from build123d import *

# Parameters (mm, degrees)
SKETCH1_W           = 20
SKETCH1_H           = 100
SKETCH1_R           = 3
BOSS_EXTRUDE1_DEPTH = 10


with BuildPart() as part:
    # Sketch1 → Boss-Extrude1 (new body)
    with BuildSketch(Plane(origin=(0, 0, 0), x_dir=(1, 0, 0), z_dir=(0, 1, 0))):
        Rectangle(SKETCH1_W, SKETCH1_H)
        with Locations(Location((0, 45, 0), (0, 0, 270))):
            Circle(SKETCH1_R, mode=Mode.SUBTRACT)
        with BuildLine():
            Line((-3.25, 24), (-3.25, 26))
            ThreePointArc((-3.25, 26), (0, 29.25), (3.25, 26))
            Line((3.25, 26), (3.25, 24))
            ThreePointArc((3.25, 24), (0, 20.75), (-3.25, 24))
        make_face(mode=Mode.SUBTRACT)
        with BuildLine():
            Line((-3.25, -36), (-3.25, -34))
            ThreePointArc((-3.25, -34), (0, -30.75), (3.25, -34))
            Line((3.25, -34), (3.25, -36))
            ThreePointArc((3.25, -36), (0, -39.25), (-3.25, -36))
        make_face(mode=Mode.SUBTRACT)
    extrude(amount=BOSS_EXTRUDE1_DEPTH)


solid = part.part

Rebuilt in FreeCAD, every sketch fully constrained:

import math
import FreeCAD as App
import Part
import Sketcher
Q = App.Units.Quantity

doc = App.newDocument("Part")
body = doc.addObject("PartDesign::Body", "Body")

sketch1 = body.newObject("Sketcher::SketchObject", "Sketch")
sketch1.AttachmentSupport = (doc.getObject("XZ_Plane"), [""])
sketch1.MapMode = "FlatFace"
sketch1.addGeometry([
    Part.LineSegment(App.Vector(-10, -50, 0), App.Vector(-10, 50, 0)),
    Part.LineSegment(App.Vector(-10, 50, 0), App.Vector(10, 50, 0)),
    Part.LineSegment(App.Vector(10, 50, 0), App.Vector(10, -50, 0)),
    Part.LineSegment(App.Vector(10, -50, 0), App.Vector(-10, -50, 0)),
    Part.ArcOfCircle(Part.Circle(App.Vector(0, 36, 0), App.Vector(0, 0, 1), 3.2), math.radians(0), math.radians(180)),
    Part.LineSegment(App.Vector(-3.2, 36, 0), App.Vector(-3.2, 34, 0)),
    Part.ArcOfCircle(Part.Circle(App.Vector(0, 34, 0), App.Vector(0, 0, 1), 3.2), math.radians(180), math.radians(360)),
    Part.LineSegment(App.Vector(3.2, 34, 0), App.Vector(3.2, 36, 0)),
    Part.ArcOfCircle(Part.Circle(App.Vector(0, -24, 0), App.Vector(0, 0, 1), 3.2), math.radians(0), math.radians(180)),
    Part.LineSegment(App.Vector(-3.2, -24, 0), App.Vector(-3.2, -26, 0)),
    Part.ArcOfCircle(Part.Circle(App.Vector(0, -26, 0), App.Vector(0, 0, 1), 3.2), math.radians(180), math.radians(360)),
    Part.LineSegment(App.Vector(3.2, -26, 0), App.Vector(3.2, -24, 0)),
    Part.Circle(App.Vector(0, -45, 0), App.Vector(0, 0, 1), 3),
], False)
sketch1.addConstraint([
    Sketcher.Constraint("Coincident", 0, 2, 1, 1),
    Sketcher.Constraint("Coincident", 1, 2, 2, 1),
    Sketcher.Constraint("Coincident", 2, 2, 3, 1),
    Sketcher.Constraint("Coincident", 3, 2, 0, 1),
    Sketcher.Constraint("Tangent", 4, 2, 5, 1),
    Sketcher.Constraint("Tangent", 5, 2, 6, 1),
    Sketcher.Constraint("Tangent", 6, 2, 7, 1),
    Sketcher.Constraint("Tangent", 7, 2, 4, 1),
    Sketcher.Constraint("Tangent", 8, 2, 9, 1),
    Sketcher.Constraint("Tangent", 9, 2, 10, 1),
    Sketcher.Constraint("Tangent", 10, 2, 11, 1),
    Sketcher.Constraint("Tangent", 11, 2, 8, 1),
    Sketcher.Constraint("Vertical", 0),
    Sketcher.Constraint("Horizontal", 1),
    Sketcher.Constraint("Vertical", 2),
    Sketcher.Constraint("Horizontal", 3),
    Sketcher.Constraint("Vertical", 5),
    Sketcher.Constraint("Vertical", 7),
    Sketcher.Constraint("Vertical", 9),
    Sketcher.Constraint("Vertical", 11),
    Sketcher.Constraint("Equal", 6, 8),
    Sketcher.Constraint("Symmetric", 0, 2, 2, 2, -1, 1),
    Sketcher.Constraint("PointOnObject", 4, 3, -2),
    Sketcher.Constraint("PointOnObject", 8, 3, -2),
    Sketcher.Constraint("PointOnObject", 12, 3, -2),
    Sketcher.Constraint("Equal", 7, 9),
    Sketcher.Constraint("Diameter", 12, Q("6 mm")),
    Sketcher.Constraint("DistanceX", 1, 1, 1, 2, Q("20 mm")),
    Sketcher.Constraint("DistanceY", 0, 1, 0, 2, Q("100 mm")),
    Sketcher.Constraint("DistanceY", 5, 2, 5, 1, Q("2 mm")),
    Sketcher.Constraint("Radius", 4, Q("3.25 mm")),
    Sketcher.Constraint("DistanceY", -1, 1, 4, 3, Q("36 mm")),
    Sketcher.Constraint("DistanceY", 8, 3, -1, 1, Q("24 mm")),
    Sketcher.Constraint("DistanceY", 12, 3, -1, 1, Q("45 mm")),
])
pad1 = body.newObject("PartDesign::Pad", "Pad")
pad1.Profile = sketch1
pad1.Length = 10
pad1.Reversed = True

doc.recompute()
